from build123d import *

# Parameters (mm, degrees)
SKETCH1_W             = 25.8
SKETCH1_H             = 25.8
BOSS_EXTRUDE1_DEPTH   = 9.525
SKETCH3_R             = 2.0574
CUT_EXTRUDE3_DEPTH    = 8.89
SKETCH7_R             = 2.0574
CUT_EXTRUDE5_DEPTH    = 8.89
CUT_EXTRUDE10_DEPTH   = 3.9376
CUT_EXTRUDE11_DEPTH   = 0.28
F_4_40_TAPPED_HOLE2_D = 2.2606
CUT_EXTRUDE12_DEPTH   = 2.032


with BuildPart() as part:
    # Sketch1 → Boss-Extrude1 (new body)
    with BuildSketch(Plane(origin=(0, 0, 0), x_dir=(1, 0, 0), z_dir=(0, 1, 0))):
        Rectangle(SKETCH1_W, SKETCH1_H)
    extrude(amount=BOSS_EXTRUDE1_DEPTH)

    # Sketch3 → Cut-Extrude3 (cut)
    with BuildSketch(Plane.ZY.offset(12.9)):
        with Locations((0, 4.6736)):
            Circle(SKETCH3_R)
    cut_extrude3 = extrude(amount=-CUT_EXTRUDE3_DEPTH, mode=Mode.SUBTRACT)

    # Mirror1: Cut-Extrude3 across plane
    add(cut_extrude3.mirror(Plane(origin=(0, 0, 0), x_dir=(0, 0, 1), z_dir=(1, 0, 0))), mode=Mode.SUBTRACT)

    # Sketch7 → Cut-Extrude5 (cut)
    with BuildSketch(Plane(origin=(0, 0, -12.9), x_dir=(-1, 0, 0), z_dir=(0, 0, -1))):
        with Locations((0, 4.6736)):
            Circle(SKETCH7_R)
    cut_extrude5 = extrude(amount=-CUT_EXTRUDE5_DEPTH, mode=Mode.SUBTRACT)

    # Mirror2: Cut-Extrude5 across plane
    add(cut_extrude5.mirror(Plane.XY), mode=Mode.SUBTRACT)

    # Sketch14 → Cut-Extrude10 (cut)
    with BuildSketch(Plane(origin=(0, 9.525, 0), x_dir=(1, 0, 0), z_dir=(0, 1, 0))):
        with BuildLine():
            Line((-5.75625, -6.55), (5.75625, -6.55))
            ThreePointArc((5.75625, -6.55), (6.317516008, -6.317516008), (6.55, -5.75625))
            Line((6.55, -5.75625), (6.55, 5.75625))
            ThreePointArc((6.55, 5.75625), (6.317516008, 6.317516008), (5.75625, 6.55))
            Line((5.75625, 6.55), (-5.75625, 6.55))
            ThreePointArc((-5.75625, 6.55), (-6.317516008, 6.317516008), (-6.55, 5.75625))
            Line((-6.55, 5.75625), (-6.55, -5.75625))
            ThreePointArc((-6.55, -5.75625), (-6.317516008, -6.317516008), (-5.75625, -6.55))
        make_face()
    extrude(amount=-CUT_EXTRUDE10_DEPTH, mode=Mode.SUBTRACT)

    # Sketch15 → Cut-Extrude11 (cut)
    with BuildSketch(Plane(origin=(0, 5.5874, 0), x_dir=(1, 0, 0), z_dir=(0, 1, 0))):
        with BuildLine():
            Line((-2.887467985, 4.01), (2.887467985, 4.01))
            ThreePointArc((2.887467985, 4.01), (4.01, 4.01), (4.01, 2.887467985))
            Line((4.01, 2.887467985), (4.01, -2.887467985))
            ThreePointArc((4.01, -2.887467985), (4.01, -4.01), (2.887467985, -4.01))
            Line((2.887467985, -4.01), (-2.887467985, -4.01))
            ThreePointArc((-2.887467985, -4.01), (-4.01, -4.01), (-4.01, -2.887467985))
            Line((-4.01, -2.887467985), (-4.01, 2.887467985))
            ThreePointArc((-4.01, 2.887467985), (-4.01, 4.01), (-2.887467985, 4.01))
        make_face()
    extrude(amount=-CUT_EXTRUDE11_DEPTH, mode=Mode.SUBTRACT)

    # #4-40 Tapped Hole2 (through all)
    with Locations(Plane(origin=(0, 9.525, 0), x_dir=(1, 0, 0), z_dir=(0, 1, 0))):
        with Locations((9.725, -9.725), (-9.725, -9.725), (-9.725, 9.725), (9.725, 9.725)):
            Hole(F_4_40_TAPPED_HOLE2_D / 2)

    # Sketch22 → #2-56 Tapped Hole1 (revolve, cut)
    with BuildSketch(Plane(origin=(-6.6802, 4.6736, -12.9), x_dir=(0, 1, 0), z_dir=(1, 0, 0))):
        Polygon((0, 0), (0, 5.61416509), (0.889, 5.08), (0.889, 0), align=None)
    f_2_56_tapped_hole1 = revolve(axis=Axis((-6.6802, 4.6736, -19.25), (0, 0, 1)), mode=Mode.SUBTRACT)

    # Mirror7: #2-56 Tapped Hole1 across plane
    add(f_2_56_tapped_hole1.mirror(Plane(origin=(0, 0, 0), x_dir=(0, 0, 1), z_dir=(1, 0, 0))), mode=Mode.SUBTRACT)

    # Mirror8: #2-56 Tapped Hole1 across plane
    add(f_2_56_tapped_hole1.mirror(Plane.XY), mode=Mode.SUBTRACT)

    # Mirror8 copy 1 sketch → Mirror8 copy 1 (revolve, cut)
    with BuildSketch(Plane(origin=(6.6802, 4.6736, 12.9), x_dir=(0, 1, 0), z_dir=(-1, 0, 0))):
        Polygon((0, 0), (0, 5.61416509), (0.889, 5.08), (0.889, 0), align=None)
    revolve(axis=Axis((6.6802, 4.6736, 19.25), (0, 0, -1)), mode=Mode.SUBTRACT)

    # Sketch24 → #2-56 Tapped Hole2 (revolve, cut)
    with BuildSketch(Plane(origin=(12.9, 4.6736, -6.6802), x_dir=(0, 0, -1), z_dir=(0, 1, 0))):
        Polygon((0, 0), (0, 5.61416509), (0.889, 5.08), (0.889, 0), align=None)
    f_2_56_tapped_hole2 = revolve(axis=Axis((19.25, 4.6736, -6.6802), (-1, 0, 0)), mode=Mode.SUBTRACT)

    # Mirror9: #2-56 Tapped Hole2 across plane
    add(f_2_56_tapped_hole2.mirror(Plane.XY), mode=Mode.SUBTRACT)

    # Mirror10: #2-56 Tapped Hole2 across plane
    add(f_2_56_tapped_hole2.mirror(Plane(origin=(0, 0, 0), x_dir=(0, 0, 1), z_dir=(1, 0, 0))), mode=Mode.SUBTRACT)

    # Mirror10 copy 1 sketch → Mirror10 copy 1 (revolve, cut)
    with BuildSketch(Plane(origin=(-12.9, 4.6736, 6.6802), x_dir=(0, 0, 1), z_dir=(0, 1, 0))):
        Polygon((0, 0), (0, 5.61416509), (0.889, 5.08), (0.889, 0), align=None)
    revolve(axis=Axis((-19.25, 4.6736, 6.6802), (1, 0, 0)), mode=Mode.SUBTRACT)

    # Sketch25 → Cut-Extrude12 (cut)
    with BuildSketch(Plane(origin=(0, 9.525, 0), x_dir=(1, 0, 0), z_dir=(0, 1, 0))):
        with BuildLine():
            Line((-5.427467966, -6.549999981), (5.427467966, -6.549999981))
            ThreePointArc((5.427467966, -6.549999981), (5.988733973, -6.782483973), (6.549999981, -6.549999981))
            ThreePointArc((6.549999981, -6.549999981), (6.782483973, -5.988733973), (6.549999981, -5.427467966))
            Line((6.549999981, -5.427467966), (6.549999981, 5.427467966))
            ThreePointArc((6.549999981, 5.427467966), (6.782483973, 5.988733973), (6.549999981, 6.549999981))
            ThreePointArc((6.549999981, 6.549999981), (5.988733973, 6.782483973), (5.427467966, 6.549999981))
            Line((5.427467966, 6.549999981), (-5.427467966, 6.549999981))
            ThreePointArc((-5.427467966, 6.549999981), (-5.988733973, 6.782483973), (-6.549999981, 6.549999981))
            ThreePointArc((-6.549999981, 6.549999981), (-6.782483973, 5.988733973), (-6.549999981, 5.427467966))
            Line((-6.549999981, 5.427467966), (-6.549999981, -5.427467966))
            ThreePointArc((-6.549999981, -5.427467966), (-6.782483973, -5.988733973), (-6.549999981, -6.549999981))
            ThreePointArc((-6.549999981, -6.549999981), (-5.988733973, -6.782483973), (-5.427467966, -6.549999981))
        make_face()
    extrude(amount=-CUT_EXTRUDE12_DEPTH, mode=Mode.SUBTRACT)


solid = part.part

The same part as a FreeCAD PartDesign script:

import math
import FreeCAD as App
import Part
import Sketcher
Q = App.Units.Quantity


def add_polygon(sketch, points):
    """Adds a closed chain of lines whose ends are joined by coincident constraints."""
    first, n = sketch.GeometryCount, len(points)
    for a, b in zip(points, points[1:] + points[:1]):
        sketch.addGeometry(Part.LineSegment(App.Vector(*a, 0), App.Vector(*b, 0)), False)
    for i in range(n):
        sketch.addConstraint(Sketcher.Constraint("Coincident", first + i, 2, first + (i + 1) % n, 1))

doc = App.newDocument("Part")
body = doc.addObject("PartDesign::Body", "Body")

sketch1 = body.newObject("Sketcher::SketchObject", "Sketch")
sketch1.AttachmentSupport = (doc.getObject("XZ_Plane"), [""])
sketch1.MapMode = "FlatFace"
add_polygon(sketch1, [(-13, -13), (-13, 13), (13, 13), (13, -13)])
sketch1.addConstraint([
    Sketcher.Constraint("Vertical", 0),
    Sketcher.Constraint("Horizontal", 1),
    Sketcher.Constraint("Vertical", 2),
    Sketcher.Constraint("Horizontal", 3),
    Sketcher.Constraint("Symmetric", 0, 2, 2, 2, -1, 1),
    Sketcher.Constraint("Equal", 3, 0),
    Sketcher.Constraint("DistanceX", 1, 1, 1, 2, 25.8),
])
pad1 = body.newObject("PartDesign::Pad", "Pad")
pad1.Profile = sketch1
pad1.Length = Q("0.375 in")
pad1.Reversed = True

sketch2 = body.newObject("Sketcher::SketchObject", "Sketch001")
sketch2.AttachmentSupport = (doc.getObject("YZ_Plane"), [""])
sketch2.MapMode = "FlatFace"
sketch2.AttachmentOffset = App.Placement(App.Vector(0, 0, -12.9), App.Rotation())
sketch2.addGeometry(Part.Circle(App.Vector(4.7, 0, 0), App.Vector(0, 0, 1), 2.1), False)
sketch2.addConstraint([
    Sketcher.Constraint("PointOnObject", 0, 3, -1),
    Sketcher.Constraint("Diameter", 0, Q("0.162 in")),
    Sketcher.Constraint("DistanceX", -1, 1, 0, 3, Q("0.184 in")),
])
pocket1 = body.newObject("PartDesign::Pocket", "Pocket")
pocket1.Profile = sketch2
pocket1.Length = Q("0.35 in")
pocket1.Reversed = True
doc.recompute()

mirrored = body.newObject("PartDesign::Mirrored", "Mirrored")
mirrored.Originals = [pocket1]
mirrored.MirrorPlane = (doc.getObject("YZ_Plane"), [""])
body.Tip = mirrored

sketch3 = body.newObject("Sketcher::SketchObject", "Sketch002")
sketch3.AttachmentSupport = (doc.getObject("XY_Plane"), [""])
sketch3.MapMode = "FlatFace"
sketch3.AttachmentOffset = App.Placement(App.Vector(0, 0, -12.9), App.Rotation())
sketch3.addGeometry(Part.Circle(App.Vector(0, 4.7, 0), App.Vector(0, 0, 1), 2.1), False)
sketch3.addConstraint([
    Sketcher.Constraint("PointOnObject", 0, 3, -2),
    Sketcher.Constraint("Diameter", 0, Q("0.162 in")),
    Sketcher.Constraint("DistanceY", -1, 1, 0, 3, Q("0.184 in")),
])
pocket2 = body.newObject("PartDesign::Pocket", "Pocket001")
pocket2.Profile = sketch3
pocket2.Length = Q("0.35 in")
pocket2.Reversed = True
doc.recompute()

mirrored2 = body.newObject("PartDesign::Mirrored", "Mirrored001")
mirrored2.Originals = [pocket2]
mirrored2.MirrorPlane = (doc.getObject("XY_Plane"), [""])
body.Tip = mirrored2

sketch4 = body.newObject("Sketcher::SketchObject", "Sketch003")
sketch4.AttachmentSupport = (doc.getObject("XZ_Plane"), [""])
sketch4.MapMode = "FlatFace"
sketch4.AttachmentOffset = App.Placement(App.Vector(0, 0, -0.375 * 25.4), App.Rotation())
sketch4.addGeometry([
    Part.LineSegment(App.Vector(-5.8, 6.5, 0), App.Vector(5.8, 6.5, 0)),
    Part.ArcOfCircle(Part.Circle(App.Vector(5.8, 5.8, 0), App.Vector(0, 0, 1), 0.8), math.radians(0), math.radians(90)),
    Part.LineSegment(App.Vector(6.5, 5.8, 0), App.Vector(6.5, -5.8, 0)),
    Part.ArcOfCircle(Part.Circle(App.Vector(5.8, -5.8, 0), App.Vector(0, 0, 1), 0.8), math.radians(-90), math.radians(0)),
    Part.LineSegment(App.Vector(5.8, -6.5, 0), App.Vector(-5.8, -6.5, 0)),
    Part.ArcOfCircle(Part.Circle(App.Vector(-5.8, -5.8, 0), App.Vector(0, 0, 1), 0.8), math.radians(180), math.radians(270)),
    Part.LineSegment(App.Vector(-6.5, -5.8, 0), App.Vector(-6.5, 5.8, 0)),
    Part.ArcOfCircle(Part.Circle(App.Vector(-5.8, 5.8, 0), App.Vector(0, 0, 1), 0.8), math.radians(90), math.radians(180)),
], False)
sketch4.addConstraint([
    Sketcher.Constraint("Tangent", 0, 2, 1, 2),
    Sketcher.Constraint("Tangent", 1, 1, 2, 1),
    Sketcher.Constraint("Tangent", 2, 2, 3, 2),
    Sketcher.Constraint("Tangent", 3, 1, 4, 1),
    Sketcher.Constraint("Tangent", 4, 2, 5, 2),
    Sketcher.Constraint("Tangent", 5, 1, 6, 1),
    Sketcher.Constraint("Tangent", 6, 2, 7, 2),
    Sketcher.Constraint("Tangent", 7, 1, 0, 1),
    Sketcher.Constraint("Horizontal", 0),
    Sketcher.Constraint("Vertical", 2),
    Sketcher.Constraint("Horizontal", 4),
    Sketcher.Constraint("Vertical", 6),
    Sketcher.Constraint("Equal", 1, 3),
    Sketcher.Constraint("Equal", 3, 5),
    Sketcher.Constraint("Equal", 5, 7),
    Sketcher.Constraint("Symmetric", 1, 3, 5, 3, -1, 1),
    Sketcher.Constraint("Equal", 4, 2),
    Sketcher.Constraint("Radius", 1, Q("0.03125 in")),
    Sketcher.Constraint("DistanceX", 0, 1, 0, 2, 11.5125),
])
pocket3 = body.newObject("PartDesign::Pocket", "Pocket002")
pocket3.Profile = sketch4
pocket3.Length = 3.9376
pocket3.Reversed = True

sketch5 = body.newObject("Sketcher::SketchObject", "Sketch004")
sketch5.AttachmentSupport = (doc.getObject("XZ_Plane"), [""])
sketch5.MapMode = "FlatFace"
sketch5.AttachmentOffset = App.Placement(App.Vector(0, 0, -5.5874), App.Rotation())
sketch5.addGeometry([
    Part.LineSegment(App.Vector(2.9, -4, 0), App.Vector(-2.9, -4, 0)),
    Part.ArcOfCircle(Part.Circle(App.Vector(-3.4, -3.4, 0), App.Vector(0, 0, 1), 0.8), math.radians(135), math.radians(315)),
    Part.LineSegment(App.Vector(-4, -2.9, 0), App.Vector(-4, 2.9, 0)),
    Part.ArcOfCircle(Part.Circle(App.Vector(-3.4, 3.4, 0), App.Vector(0, 0, 1), 0.8), math.radians(45), math.radians(225)),
    Part.LineSegment(App.Vector(-2.9, 4, 0), App.Vector(2.9, 4, 0)),
    Part.ArcOfCircle(Part.Circle(App.Vector(3.4, 3.4, 0), App.Vector(0, 0, 1), 0.8), math.radians(-45), math.radians(135)),
    Part.LineSegment(App.Vector(4, 2.9, 0), App.Vector(4, -2.9, 0)),
    Part.ArcOfCircle(Part.Circle(App.Vector(3.4, -3.4, 0), App.Vector(0, 0, 1), 0.8), math.radians(-135), math.radians(45)),
], False)
sketch5.addConstraint([
    Sketcher.Constraint("Coincident", 0, 2, 1, 2),
    Sketcher.Constraint("Coincident", 1, 1, 2, 1),
    Sketcher.Constraint("Coincident", 2, 2, 3, 2),
    Sketcher.Constraint("Coincident", 3, 1, 4, 1),
    Sketcher.Constraint("Coincident", 4, 2, 5, 2),
    Sketcher.Constraint("Coincident", 5, 1, 6, 1),
    Sketcher.Constraint("Coincident", 6, 2, 7, 2),
    Sketcher.Constraint("Coincident", 7, 1, 0, 1),
    Sketcher.Constraint("Horizontal", 0),
    Sketcher.Constraint("Vertical", 2),
    Sketcher.Constraint("Horizontal", 4),
    Sketcher.Constraint("Vertical", 6),
    Sketcher.Constraint("Equal", 1, 3),
    Sketcher.Constraint("Equal", 3, 5),
    Sketcher.Constraint("Equal", 5, 7),
    Sketcher.Constraint("Symmetric", 1, 3, 5, 3, -1, 1),
    Sketcher.Constraint("Symmetric", 3, 3, 7, 3, -1, 1),
    Sketcher.Constraint("Symmetric", 3, 3, 5, 3, -2),
    Sketcher.Constraint("Horizontal", 2, 2, 5, 1),
    Sketcher.Constraint("Vertical", 0, 2, 3, 1),
    Sketcher.Constraint("Equal", 4, 2),
    Sketcher.Constraint("Radius", 1, Q("0.03125 in")),
    Sketcher.Constraint("DistanceY", 0, 2, -1, 1, 4.01),
    Sketcher.Constraint("DistanceX", 1, 1, -1, 1, 4.01),
    Sketcher.Constraint("DistanceX", 0, 2, 7, 3, 6.336202),
])
pocket4 = body.newObject("PartDesign::Pocket", "Pocket003")
pocket4.Profile = sketch5
pocket4.Length = 0.28
pocket4.Reversed = True

sketch6 = body.newObject("Sketcher::SketchObject", "Sketch005")
sketch6.AttachmentSupport = (doc.getObject("XZ_Plane"), [""])
sketch6.MapMode = "FlatFace"
sketch6.AttachmentOffset = App.Placement(App.Vector(0, 0, -0.375 * 25.4), App.Rotation())
sketch6.addGeometry([
    Part.Circle(App.Vector(9.7, 9.7, 0), App.Vector(0, 0, 1), 1.1),
    Part.Circle(App.Vector(-9.7, 9.7, 0), App.Vector(0, 0, 1), 1.1),
    Part.Circle(App.Vector(-9.7, -9.7, 0), App.Vector(0, 0, 1), 1.1),
    Part.Circle(App.Vector(9.7, -9.7, 0), App.Vector(0, 0, 1), 1.1),
], False)
sketch6.addConstraint([
    Sketcher.Constraint("Equal", 0, 1),
    Sketcher.Constraint("Equal", 1, 2),
    Sketcher.Constraint("Equal", 2, 3),
    Sketcher.Constraint("Symmetric", 0, 3, 2, 3, -1, 1),
    Sketcher.Constraint("Symmetric", 1, 3, 3, 3, -1, 1),
    Sketcher.Constraint("Symmetric", 0, 3, 1, 3, -2),
    Sketcher.Constraint("Diameter", 0, Q("0.089 in")),
    Sketcher.Constraint("DistanceX", -1, 1, 0, 3, 9.725),
    Sketcher.Constraint("DistanceY", -1, 1, 0, 3, 9.725),
])
doc.recompute()
hole = body.newObject("PartDesign::Hole", "Hole")
hole.Profile = sketch6
hole.ThreadType = "None"
hole.Diameter = Q("0.089 in")
hole.DepthType = "ThroughAll"
hole.Reversed = True

sketch7 = body.newObject("Sketcher::SketchObject", "Sketch006")
sketch7.AttachmentSupport = (doc.getObject("YZ_Plane"), [""])
sketch7.MapMode = "FlatFace"
sketch7.AttachmentOffset = App.Placement(App.Vector(0, 0, -0.263 * 25.4), App.Rotation())
add_polygon(sketch7, [(4.7, -7.3), (4.7, -12.9), (5.6, -12.9), (5.6, -7.8)])
sketch7.addGeometry(Part.LineSegment(App.Vector(4.7, -12.9, 0), App.Vector(4.7, -7.3, 0)), True)
sketch7.addConstraint([
    Sketcher.Constraint("Vertical", 0),
    Sketcher.Constraint("Horizontal", 1),
    Sketcher.Constraint("Vertical", 2),
    Sketcher.Constraint("Vertical", 4),
    Sketcher.Constraint("Coincident", 4, 1, 0, 2),
    Sketcher.Constraint("Equal", 0, 4),
    Sketcher.Constraint("DistanceY", 2, 1, 2, 2, Q("0.2 in")),
    Sketcher.Constraint("Angle", 3, Q("149 deg")),
    Sketcher.Constraint("DistanceX", 1, 1, 1, 2, Q("0.035 in")),
    Sketcher.Constraint("DistanceX", -1, 1, 0, 2, Q("0.184 in")),
    Sketcher.Constraint("DistanceY", 0, 2, -1, 1, 12.9),
])
groove = body.newObject("PartDesign::Groove", "Groove")
groove.Profile = sketch7
groove.ReferenceAxis = (sketch7, ["Axis0"])
groove.Angle = 360
doc.recompute()

mirrored3 = body.newObject("PartDesign::Mirrored", "Mirrored002")
mirrored3.Originals = [groove]
mirrored3.MirrorPlane = (doc.getObject("YZ_Plane"), [""])
body.Tip = mirrored3
doc.recompute()

mirrored4 = body.newObject("PartDesign::Mirrored", "Mirrored003")
mirrored4.Originals = [groove]
mirrored4.MirrorPlane = (doc.getObject("XY_Plane"), [""])
body.Tip = mirrored4

sketch8 = body.newObject("Sketcher::SketchObject", "Sketch007")
sketch8.AttachmentSupport = (doc.getObject("YZ_Plane"), [""])
sketch8.MapMode = "FlatFace"
sketch8.AttachmentOffset = App.Placement(App.Vector(0, 0, 0.263 * 25.4), App.Rotation())
add_polygon(sketch8, [(4.7, 7.3), (4.7, 12.9), (5.6, 12.9), (5.6, 7.8)])
sketch8.addGeometry(Part.LineSegment(App.Vector(4.7, 12.9, 0), App.Vector(4.7, 7.3, 0)), True)
sketch8.addConstraint([
    Sketcher.Constraint("Vertical", 0),
    Sketcher.Constraint("Horizontal", 1),
    Sketcher.Constraint("Vertical", 2),
    Sketcher.Constraint("Vertical", 4),
    Sketcher.Constraint("Coincident", 4, 1, 0, 2),
    Sketcher.Constraint("Equal", 0, 4),
    Sketcher.Constraint("DistanceY", 2, 2, 2, 1, Q("0.2 in")),
    Sketcher.Constraint("Angle", 3, Q("-149 deg")),
    Sketcher.Constraint("DistanceX", 1, 1, 1, 2, Q("0.035 in")),
    Sketcher.Constraint("DistanceX", -1, 1, 0, 2, Q("0.184 in")),
    Sketcher.Constraint("DistanceY", -1, 1, 0, 2, 12.9),
])
groove2 = body.newObject("PartDesign::Groove", "Groove001")
groove2.Profile = sketch8
groove2.ReferenceAxis = (sketch8, ["Axis0"])
groove2.Angle = 360

sketch9 = body.newObject("Sketcher::SketchObject", "Sketch008")
sketch9.AttachmentSupport = (doc.getObject("XZ_Plane"), [""])
sketch9.MapMode = "FlatFace"
sketch9.AttachmentOffset = App.Placement(App.Vector(0, 0, -0.184 * 25.4), App.Rotation())
add_polygon(sketch9, [(7.3, -6.7), (12.9, -6.7), (12.9, -7.6), (7.8, -7.6)])
sketch9.addGeometry(Part.LineSegment(App.Vector(12.9, -6.7, 0), App.Vector(7.3, -6.7, 0)), True)
sketch9.addConstraint([
    Sketcher.Constraint("Horizontal", 0),
    Sketcher.Constraint("Vertical", 1),
    Sketcher.Constraint("Horizontal", 2),
    Sketcher.Constraint("Horizontal", 4),
    Sketcher.Constraint("Coincident", 4, 1, 0, 2),
    Sketcher.Constraint("Equal", 0, 4),
    Sketcher.Constraint("DistanceX", 2, 2, 2, 1, Q("0.2 in")),
    Sketcher.Constraint("Angle", 3, Q("121 deg")),
    Sketcher.Constraint("DistanceY", 1, 2, 1, 1, Q("0.035 in")),
    Sketcher.Constraint("DistanceY", 0, 2, -1, 1, Q("0.263 in")),
    Sketcher.Constraint("DistanceX", -1, 1, 0, 2, 12.9),
])
groove3 = body.newObject("PartDesign::Groove", "Groove002")
groove3.Profile = sketch9
groove3.ReferenceAxis = (sketch9, ["Axis0"])
groove3.Angle = 360
doc.recompute()

mirrored5 = body.newObject("PartDesign::Mirrored", "Mirrored004")
mirrored5.Originals = [groove3]
mirrored5.MirrorPlane = (doc.getObject("XY_Plane"), [""])
body.Tip = mirrored5
doc.recompute()

mirrored6 = body.newObject("PartDesign::Mirrored", "Mirrored005")
mirrored6.Originals = [groove3]
mirrored6.MirrorPlane = (doc.getObject("YZ_Plane"), [""])
body.Tip = mirrored6

sketch10 = body.newObject("Sketcher::SketchObject", "Sketch009")
sketch10.AttachmentSupport = (doc.getObject("XZ_Plane"), [""])
sketch10.MapMode = "FlatFace"
sketch10.AttachmentOffset = App.Placement(App.Vector(0, 0, -0.184 * 25.4), App.Rotation())
add_polygon(sketch10, [(-7.3, 6.7), (-12.9, 6.7), (-12.9, 7.6), (-7.8, 7.6)])
sketch10.addGeometry(Part.LineSegment(App.Vector(-12.9, 6.7, 0), App.Vector(-7.3, 6.7, 0)), True)
sketch10.addConstraint([
    Sketcher.Constraint("Horizontal", 0),
    Sketcher.Constraint("Vertical", 1),
    Sketcher.Constraint("Horizontal", 2),
    Sketcher.Constraint("Horizontal", 4),
    Sketcher.Constraint("Coincident", 4, 1, 0, 2),
    Sketcher.Constraint("Equal", 0, 4),
    Sketcher.Constraint("DistanceX", 2, 1, 2, 2, Q("0.2 in")),
    Sketcher.Constraint("Angle", 3, Q("-59 deg")),
    Sketcher.Constraint("DistanceY", 1, 1, 1, 2, Q("0.035 in")),
    Sketcher.Constraint("DistanceY", -1, 1, 0, 2, Q("0.263 in")),
    Sketcher.Constraint("DistanceX", 0, 2, -1, 1, 12.9),
])
groove4 = body.newObject("PartDesign::Groove", "Groove003")
groove4.Profile = sketch10
groove4.ReferenceAxis = (sketch10, ["Axis0"])
groove4.Angle = 360

sketch11 = body.newObject("Sketcher::SketchObject", "Sketch010")
sketch11.AttachmentSupport = (doc.getObject("XZ_Plane"), [""])
sketch11.MapMode = "FlatFace"
sketch11.AttachmentOffset = App.Placement(App.Vector(0, 0, -0.375 * 25.4), App.Rotation())
sketch11.addGeometry([
    Part.LineSegment(App.Vector(-5.4, 6.5, 0), App.Vector(5.4, 6.5, 0)),
    Part.ArcOfCircle(Part.Circle(App.Vector(6, 6, 0), App.Vector(0, 0, 1), 0.8), math.radians(45), math.radians(135)),
    Part.ArcOfCircle(Part.Circle(App.Vector(6, 6, 0), App.Vector(0, 0, 1), 0.8), math.radians(-45), math.radians(45)),
    Part.LineSegment(App.Vector(6.5, 5.4, 0), App.Vector(6.5, -5.4, 0)),
    Part.ArcOfCircle(Part.Circle(App.Vector(6, -6, 0), App.Vector(0, 0, 1), 0.8), math.radians(-45), math.radians(45)),
    Part.ArcOfCircle(Part.Circle(App.Vector(6, -6, 0), App.Vector(0, 0, 1), 0.8), math.radians(-135), math.radians(-45)),
    Part.LineSegment(App.Vector(5.4, -6.5, 0), App.Vector(-5.4, -6.5, 0)),
    Part.ArcOfCircle(Part.Circle(App.Vector(-6, -6, 0), App.Vector(0, 0, 1), 0.8), math.radians(-135), math.radians(-45)),
    Part.ArcOfCircle(Part.Circle(App.Vector(-6, -6, 0), App.Vector(0, 0, 1), 0.8), math.radians(135), math.radians(225)),
    Part.LineSegment(App.Vector(-6.5, -5.4, 0), App.Vector(-6.5, 5.4, 0)),
    Part.ArcOfCircle(Part.Circle(App.Vector(-6, 6, 0), App.Vector(0, 0, 1), 0.8), math.radians(135), math.radians(225)),
    Part.ArcOfCircle(Part.Circle(App.Vector(-6, 6, 0), App.Vector(0, 0, 1), 0.8), math.radians(45), math.radians(135)),
], False)
sketch11.addConstraint([
    Sketcher.Constraint("Coincident", 0, 2, 1, 2),
    Sketcher.Constraint("Tangent", 1, 1, 2, 2),
    Sketcher.Constraint("Coincident", 2, 1, 3, 1),
    Sketcher.Constraint("Coincident", 3, 2, 4, 2),
    Sketcher.Constraint("Tangent", 4, 1, 5, 2),
    Sketcher.Constraint("Coincident", 5, 1, 6, 1),
    Sketcher.Constraint("Coincident", 6, 2, 7, 2),
    Sketcher.Constraint("Tangent", 7, 1, 8, 2),
    Sketcher.Constraint("Coincident", 8, 1, 9, 1),
    Sketcher.Constraint("Coincident", 9, 2, 10, 2),
    Sketcher.Constraint("Tangent", 10, 1, 11, 2),
    Sketcher.Constraint("Coincident", 11, 1, 0, 1),
    Sketcher.Constraint("Horizontal", 0),
    Sketcher.Constraint("Vertical", 3),
    Sketcher.Constraint("Horizontal", 6),
    Sketcher.Constraint("Vertical", 9),
    Sketcher.Constraint("Equal", 1, 2),
    Sketcher.Constraint("Equal", 2, 4),
    Sketcher.Constraint("Equal", 4, 5),
    Sketcher.Constraint("Equal", 5, 7),
    Sketcher.Constraint("Equal", 7, 8),
    Sketcher.Constraint("Equal", 8, 10),
    Sketcher.Constraint("Equal", 10, 11),
    Sketcher.Constraint("Symmetric", 1, 3, 7, 3, -1, 1),
    Sketcher.Constraint("Symmetric", 4, 3, 10, 3, -1, 1),
    Sketcher.Constraint("Symmetric", 4, 3, 7, 3, -2),
    Sketcher.Constraint("Horizontal", 0, 2, 1, 1),
    Sketcher.Constraint("Horizontal", 4, 1, 5, 1),
    Sketcher.Constraint("Horizontal", 6, 2, 7, 1),
    Sketcher.Constraint("Horizontal", 3, 2, 8, 1),
    Sketcher.Constraint("Horizontal", 1, 1, 10, 1),
    Sketcher.Constraint("Vertical", 1, 1, 2, 1),
    Sketcher.Constraint("Vertical", 3, 2, 4, 1),
    Sketcher.Constraint("Equal", 6, 3),
    Sketcher.Constraint("Radius", 1, Q("0.03125 in")),
    Sketcher.Constraint("DistanceY", -1, 1, 0, 2, 6.55),
    Sketcher.Constraint("DistanceX", -1, 1, 1, 1, 6.55),
])
pocket5 = body.newObject("PartDesign::Pocket", "Pocket004")
pocket5.Profile = sketch11
pocket5.Length = Q("0.08 in")
pocket5.Reversed = True

doc.recompute()
